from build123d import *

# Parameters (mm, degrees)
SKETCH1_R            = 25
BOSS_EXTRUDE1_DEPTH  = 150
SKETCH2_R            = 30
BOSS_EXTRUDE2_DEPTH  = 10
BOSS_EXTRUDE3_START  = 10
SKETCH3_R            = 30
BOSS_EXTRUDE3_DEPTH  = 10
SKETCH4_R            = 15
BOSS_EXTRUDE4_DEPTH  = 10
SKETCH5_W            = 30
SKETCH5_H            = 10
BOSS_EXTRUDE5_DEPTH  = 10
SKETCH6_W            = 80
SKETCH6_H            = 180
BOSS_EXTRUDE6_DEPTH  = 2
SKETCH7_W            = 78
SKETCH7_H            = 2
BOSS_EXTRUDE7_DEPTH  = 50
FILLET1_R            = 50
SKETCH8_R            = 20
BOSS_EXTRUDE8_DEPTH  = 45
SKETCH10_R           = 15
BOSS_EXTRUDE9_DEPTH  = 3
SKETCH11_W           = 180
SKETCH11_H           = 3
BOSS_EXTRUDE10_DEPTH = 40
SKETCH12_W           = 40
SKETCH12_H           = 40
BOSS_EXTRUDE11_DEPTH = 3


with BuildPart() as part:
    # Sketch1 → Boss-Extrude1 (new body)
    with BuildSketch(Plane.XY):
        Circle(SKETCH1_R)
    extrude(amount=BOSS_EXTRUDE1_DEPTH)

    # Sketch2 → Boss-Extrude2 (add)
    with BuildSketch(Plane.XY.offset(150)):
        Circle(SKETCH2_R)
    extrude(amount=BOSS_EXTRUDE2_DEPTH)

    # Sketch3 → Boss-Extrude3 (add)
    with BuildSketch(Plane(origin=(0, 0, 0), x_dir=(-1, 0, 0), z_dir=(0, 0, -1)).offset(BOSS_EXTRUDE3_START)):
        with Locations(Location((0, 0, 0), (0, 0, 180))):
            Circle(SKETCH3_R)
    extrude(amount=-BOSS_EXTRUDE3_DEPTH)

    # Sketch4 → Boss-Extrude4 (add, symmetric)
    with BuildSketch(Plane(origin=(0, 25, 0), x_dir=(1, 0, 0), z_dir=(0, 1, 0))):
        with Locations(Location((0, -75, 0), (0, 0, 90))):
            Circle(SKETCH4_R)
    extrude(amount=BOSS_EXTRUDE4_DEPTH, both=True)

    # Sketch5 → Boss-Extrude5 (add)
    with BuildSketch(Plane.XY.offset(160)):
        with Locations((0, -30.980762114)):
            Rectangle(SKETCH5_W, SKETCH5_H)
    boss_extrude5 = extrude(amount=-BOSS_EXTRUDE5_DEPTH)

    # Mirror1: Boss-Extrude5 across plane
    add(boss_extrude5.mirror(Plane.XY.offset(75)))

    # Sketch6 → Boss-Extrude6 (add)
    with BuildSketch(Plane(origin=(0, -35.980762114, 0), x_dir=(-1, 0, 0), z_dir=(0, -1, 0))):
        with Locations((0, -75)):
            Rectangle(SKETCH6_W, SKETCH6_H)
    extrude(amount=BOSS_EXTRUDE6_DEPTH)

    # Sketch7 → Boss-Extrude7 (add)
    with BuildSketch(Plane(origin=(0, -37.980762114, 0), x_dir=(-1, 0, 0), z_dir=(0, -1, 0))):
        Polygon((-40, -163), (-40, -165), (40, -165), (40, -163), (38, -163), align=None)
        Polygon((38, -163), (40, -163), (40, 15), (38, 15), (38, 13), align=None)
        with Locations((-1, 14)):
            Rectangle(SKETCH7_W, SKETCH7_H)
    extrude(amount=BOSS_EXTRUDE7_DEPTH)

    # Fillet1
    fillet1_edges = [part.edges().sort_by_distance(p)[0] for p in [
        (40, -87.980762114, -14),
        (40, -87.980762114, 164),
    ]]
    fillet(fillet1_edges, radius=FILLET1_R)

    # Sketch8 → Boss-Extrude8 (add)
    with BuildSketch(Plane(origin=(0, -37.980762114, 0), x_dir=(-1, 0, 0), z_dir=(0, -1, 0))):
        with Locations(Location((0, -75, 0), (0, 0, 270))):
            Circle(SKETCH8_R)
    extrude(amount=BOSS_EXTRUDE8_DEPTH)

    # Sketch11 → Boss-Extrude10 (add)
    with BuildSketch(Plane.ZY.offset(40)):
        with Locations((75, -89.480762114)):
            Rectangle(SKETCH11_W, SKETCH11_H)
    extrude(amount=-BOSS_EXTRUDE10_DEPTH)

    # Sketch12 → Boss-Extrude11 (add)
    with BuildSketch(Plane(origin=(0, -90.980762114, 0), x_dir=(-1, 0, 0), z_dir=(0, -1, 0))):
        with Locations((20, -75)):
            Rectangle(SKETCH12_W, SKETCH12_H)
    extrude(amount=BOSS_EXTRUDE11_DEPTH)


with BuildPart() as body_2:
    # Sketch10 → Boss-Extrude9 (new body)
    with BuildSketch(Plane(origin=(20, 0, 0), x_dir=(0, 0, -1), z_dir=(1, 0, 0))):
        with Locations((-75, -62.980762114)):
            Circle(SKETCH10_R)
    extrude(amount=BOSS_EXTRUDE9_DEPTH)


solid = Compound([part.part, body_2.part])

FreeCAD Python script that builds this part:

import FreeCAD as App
import Part
import Sketcher
from FreeCAD import Vector


def edges_at(feature, points):
    """Names of the edges that pass closest to the given points."""
    edges = feature.Shape.Edges
    near = lambda p: min(range(len(edges)), key=lambda i: edges[i].distToShape(Part.Vertex(*p))[0])
    return sorted({f"Edge{near(p) + 1}" for p in points})

doc = App.newDocument("Part")
body = doc.addObject("PartDesign::Body", "Body")

# Sketch on XY plane
sketch1 = body.newObject("Sketcher::SketchObject", "Sketch")
sketch1.AttachmentSupport = (doc.getObject("XY_Plane"), [""])
sketch1.MapMode = "FlatFace"
sketch1.addGeometry(Part.Circle(Vector(0, 0, 0), Vector(0, 0, 1), 25), False)
sketch1.addConstraint([
    Sketcher.Constraint("Coincident", 0, 3, -1, 1),
    Sketcher.Constraint("Diameter", 0, 50.0),
])
pad1 = body.newObject("PartDesign::Pad", "Pad")
pad1.Profile = sketch1
pad1.Length = 150

# Sketch on XY plane
sketch2 = body.newObject("Sketcher::SketchObject", "Sketch001")
sketch2.AttachmentSupport = (doc.getObject("XY_Plane"), [""])
sketch2.MapMode = "FlatFace"
sketch2.AttachmentOffset = App.Placement(Vector(0, 0, 150), App.Rotation())
sketch2.addGeometry(Part.Circle(Vector(0, 0, 0), Vector(0, 0, 1), 30), False)
sketch2.addConstraint([
    Sketcher.Constraint("Coincident", 0, 3, -1, 1),
    Sketcher.Constraint("Diameter", 0, 60.0),
])
pad2 = body.newObject("PartDesign::Pad", "Pad001")
pad2.Profile = sketch2
pad2.Length = 10

# Sketch on XY plane
sketch3 = body.newObject("Sketcher::SketchObject", "Sketch002")
sketch3.AttachmentSupport = (doc.getObject("XY_Plane"), [""])
sketch3.MapMode = "FlatFace"
sketch3.AttachmentOffset = App.Placement(Vector(0, 0, -10), App.Rotation())
sketch3.addGeometry(Part.Circle(Vector(0, 0, 0), Vector(0, 0, 1), 30), False)
sketch3.addConstraint([
    Sketcher.Constraint("Coincident", 0, 3, -1, 1),
    Sketcher.Constraint("Diameter", 0, 60.0),
])
pad3 = body.newObject("PartDesign::Pad", "Pad002")
pad3.Profile = sketch3
pad3.Length = 10

# Sketch on XZ plane
sketch4 = body.newObject("Sketcher::SketchObject", "Sketch003")
sketch4.AttachmentSupport = (doc.getObject("XZ_Plane"), [""])
sketch4.MapMode = "FlatFace"
sketch4.AttachmentOffset = App.Placement(Vector(0, 0, -25), App.Rotation())
sketch4.addGeometry(Part.Circle(Vector(0, 75, 0), Vector(0, 0, 1), 15), False)
sketch4.addConstraint([
    Sketcher.Constraint("PointOnObject", 0, 3, -2),
    Sketcher.Constraint("Diameter", 0, 30.0),
    Sketcher.Constraint("DistanceY", -1, 1, 0, 3, 75.0),
])
pad4 = body.newObject("PartDesign::Pad", "Pad003")
pad4.Profile = sketch4
pad4.Length = 20
pad4.Midplane = True

# Sketch on XY plane
sketch5 = body.newObject("Sketcher::SketchObject", "Sketch004")
sketch5.AttachmentSupport = (doc.getObject("XY_Plane"), [""])
sketch5.MapMode = "FlatFace"
sketch5.AttachmentOffset = App.Placement(Vector(0, 0, 160), App.Rotation())
sketch5.addGeometry([
    Part.LineSegment(Vector(-15, -25.980762, 0), Vector(-15, -35.980762, 0)),
    Part.LineSegment(Vector(-15, -35.980762, 0), Vector(15, -35.980762, 0)),
    Part.LineSegment(Vector(15, -35.980762, 0), Vector(15, -25.980762, 0)),
    Part.LineSegment(Vector(15, -25.980762, 0), Vector(-15, -25.980762, 0)),
], False)
sketch5.addConstraint([
    Sketcher.Constraint("Coincident", 0, 2, 1, 1),
    Sketcher.Constraint("Coincident", 1, 2, 2, 1),
    Sketcher.Constraint("Coincident", 2, 2, 3, 1),
    Sketcher.Constraint("Coincident", 3, 2, 0, 1),
    Sketcher.Constraint("Vertical", 0),
    Sketcher.Constraint("Horizontal", 1),
    Sketcher.Constraint("Vertical", 2),
    Sketcher.Constraint("Horizontal", 3),
    Sketcher.Constraint("DistanceX", 1, 1, 1, 2, 30.0),
    Sketcher.Constraint("DistanceY", 0, 2, 0, 1, 10.0),
    Sketcher.Constraint("DistanceX", 0, 2, -1, 1, 15.0),
    Sketcher.Constraint("DistanceY", 0, 2, -1, 1, 35.980762),
])
pad5 = body.newObject("PartDesign::Pad", "Pad004")
pad5.Profile = sketch5
pad5.Length = 10
pad5.Reversed = True
doc.recompute()

datumplane = body.newObject("PartDesign::Plane", "DatumPlane")
datumplane.AttachmentSupport = (doc.getObject("XY_Plane"), [""])
datumplane.MapMode = "FlatFace"
datumplane.AttachmentOffset = App.Placement(Vector(0, 0, 75), App.Rotation())
mirrored = body.newObject("PartDesign::Mirrored", "Mirrored")
mirrored.Originals = [pad5]
mirrored.MirrorPlane = (datumplane, [""])
body.Tip = mirrored

# Sketch on XZ plane
sketch6 = body.newObject("Sketcher::SketchObject", "Sketch005")
sketch6.AttachmentSupport = (doc.getObject("XZ_Plane"), [""])
sketch6.MapMode = "FlatFace"
sketch6.AttachmentOffset = App.Placement(Vector(0, 0, 35.980762), App.Rotation())
sketch6.addGeometry([
    Part.LineSegment(Vector(40, -15, 0), Vector(40, 165, 0)),
    Part.LineSegment(Vector(40, 165, 0), Vector(-40, 165, 0)),
    Part.LineSegment(Vector(-40, 165, 0), Vector(-40, -15, 0)),
    Part.LineSegment(Vector(-40, -15, 0), Vector(40, -15, 0)),
], False)
sketch6.addConstraint([
    Sketcher.Constraint("Coincident", 0, 2, 1, 1),
    Sketcher.Constraint("Coincident", 1, 2, 2, 1),
    Sketcher.Constraint("Coincident", 2, 2, 3, 1),
    Sketcher.Constraint("Coincident", 3, 2, 0, 1),
    Sketcher.Constraint("Vertical", 0),
    Sketcher.Constraint("Horizontal", 1),
    Sketcher.Constraint("Vertical", 2),
    Sketcher.Constraint("Horizontal", 3),
    Sketcher.Constraint("DistanceX", 1, 2, 1, 1, 80.0),
    Sketcher.Constraint("DistanceY", 0, 1, 0, 2, 180.0),
    Sketcher.Constraint("DistanceX", -1, 1, 0, 2, 40.0),
    Sketcher.Constraint("DistanceY", -1, 1, 0, 2, 165.0),
])
pad6 = body.newObject("PartDesign::Pad", "Pad005")
pad6.Profile = sketch6
pad6.Length = 2

# Sketch on XZ plane
sketch7 = body.newObject("Sketcher::SketchObject", "Sketch006")
sketch7.AttachmentSupport = (doc.getObject("XZ_Plane"), [""])
sketch7.MapMode = "FlatFace"
sketch7.AttachmentOffset = App.Placement(Vector(0, 0, 37.980762), App.Rotation())
sketch7.addGeometry([
    Part.LineSegment(Vector(40, 163, 0), Vector(40, 165, 0)),  # 0
    Part.LineSegment(Vector(40, 165, 0), Vector(-40, 165, 0)),  # 1
    Part.LineSegment(Vector(-40, 165, 0), Vector(-40, -15, 0)),  # 2
    Part.LineSegment(Vector(-40, -15, 0), Vector(40, -15, 0)),  # 3
    Part.LineSegment(Vector(40, -15, 0), Vector(40, -13, 0)),  # 4
    Part.LineSegment(Vector(40, -13, 0), Vector(-38, -13, 0)),  # 5
    Part.LineSegment(Vector(-38, -13, 0), Vector(-38, 163, 0)),  # 6
    Part.LineSegment(Vector(-38, 163, 0), Vector(40, 163, 0)),  # 7
], False)
sketch7.addConstraint([
    Sketcher.Constraint("Coincident", 0, 2, 1, 1),
    Sketcher.Constraint("Coincident", 1, 2, 2, 1),
    Sketcher.Constraint("Coincident", 2, 2, 3, 1),
    Sketcher.Constraint("Coincident", 3, 2, 4, 1),
    Sketcher.Constraint("Coincident", 4, 2, 5, 1),
    Sketcher.Constraint("Coincident", 5, 2, 6, 1),
    Sketcher.Constraint("Coincident", 6, 2, 7, 1),
    Sketcher.Constraint("Coincident", 7, 2, 0, 1),
    Sketcher.Constraint("Vertical", 0),
    Sketcher.Constraint("Horizontal", 1),
    Sketcher.Constraint("Vertical", 2),
    Sketcher.Constraint("Horizontal", 3),
    Sketcher.Constraint("Vertical", 4),
    Sketcher.Constraint("Horizontal", 5),
    Sketcher.Constraint("Vertical", 6),
    Sketcher.Constraint("Horizontal", 7),
    Sketcher.Constraint("Vertical", 0, 2, 3, 2),
    Sketcher.Constraint("Equal", 0, 4),
    Sketcher.Constraint("DistanceX", 1, 2, 1, 1, 80.0),
    Sketcher.Constraint("DistanceX", 5, 2, 5, 1, 78.0),
    Sketcher.Constraint("DistanceY", 0, 1, 0, 2, 2.0),
    Sketcher.Constraint("DistanceY", 2, 2, 2, 1, 180.0),
    Sketcher.Constraint("DistanceX", -1, 1, 0, 2, 40.0),
    Sketcher.Constraint("DistanceY", -1, 1, 0, 2, 165.0),
])
pad7 = body.newObject("PartDesign::Pad", "Pad006")
pad7.Profile = sketch7
pad7.Length = 50
doc.recompute()

fillet = body.newObject("PartDesign::Fillet", "Fillet")
fillet.Base = (pad7, edges_at(pad7, [(40, -87.981, -14), (40, -87.981, 164)]))
fillet.Radius = 50

# Sketch on XZ plane
sketch8 = body.newObject("Sketcher::SketchObject", "Sketch007")
sketch8.AttachmentSupport = (doc.getObject("XZ_Plane"), [""])
sketch8.MapMode = "FlatFace"
sketch8.AttachmentOffset = App.Placement(Vector(0, 0, 37.980762), App.Rotation())
sketch8.addGeometry(Part.Circle(Vector(0, 75, 0), Vector(0, 0, 1), 20), False)
sketch8.addConstraint([
    Sketcher.Constraint("PointOnObject", 0, 3, -2),
    Sketcher.Constraint("Diameter", 0, 40.0),
    Sketcher.Constraint("DistanceY", -1, 1, 0, 3, 75.0),
])
pad8 = body.newObject("PartDesign::Pad", "Pad007")
pad8.Profile = sketch8
pad8.Length = 45

# Sketch on YZ plane
sketch9 = body.newObject("Sketcher::SketchObject", "Sketch008")
sketch9.AttachmentSupport = (doc.getObject("YZ_Plane"), [""])
sketch9.MapMode = "FlatFace"
sketch9.AttachmentOffset = App.Placement(Vector(0, 0, -40), App.Rotation())
sketch9.addGeometry([
    Part.LineSegment(Vector(-87.980762, -15, 0), Vector(-90.980762, -15, 0)),
    Part.LineSegment(Vector(-90.980762, -15, 0), Vector(-90.980762, 165, 0)),
    Part.LineSegment(Vector(-90.980762, 165, 0), Vector(-87.980762, 165, 0)),
    Part.LineSegment(Vector(-87.980762, 165, 0), Vector(-87.980762, -15, 0)),
], False)
sketch9.addConstraint([
    Sketcher.Constraint("Coincident", 0, 2, 1, 1),
    Sketcher.Constraint("Coincident", 1, 2, 2, 1),
    Sketcher.Constraint("Coincident", 2, 2, 3, 1),
    Sketcher.Constraint("Coincident", 3, 2, 0, 1),
    Sketcher.Constraint("Horizontal", 0),
    Sketcher.Constraint("Vertical", 1),
    Sketcher.Constraint("Horizontal", 2),
    Sketcher.Constraint("Vertical", 3),
    Sketcher.Constraint("DistanceX", 0, 2, 0, 1, 3.0),
    Sketcher.Constraint("DistanceY", 1, 1, 1, 2, 180.0),
    Sketcher.Constraint("DistanceY", 0, 2, -1, 1, 15.0),
    Sketcher.Constraint("DistanceX", 0, 2, -1, 1, 90.980762),
])
pad9 = body.newObject("PartDesign::Pad", "Pad008")
pad9.Profile = sketch9
pad9.Length = 40

# Sketch on XZ plane
sketch10 = body.newObject("Sketcher::SketchObject", "Sketch009")
sketch10.AttachmentSupport = (doc.getObject("XZ_Plane"), [""])
sketch10.MapMode = "FlatFace"
sketch10.AttachmentOffset = App.Placement(Vector(0, 0, 90.980762), App.Rotation())
sketch10.addGeometry([
    Part.LineSegment(Vector(0, 55, 0), Vector(0, 95, 0)),
    Part.LineSegment(Vector(0, 95, 0), Vector(-40, 95, 0)),
    Part.LineSegment(Vector(-40, 95, 0), Vector(-40, 55, 0)),
    Part.LineSegment(Vector(-40, 55, 0), Vector(0, 55, 0)),
], False)
sketch10.addConstraint([
    Sketcher.Constraint("Coincident", 0, 2, 1, 1),
    Sketcher.Constraint("Coincident", 1, 2, 2, 1),
    Sketcher.Constraint("Coincident", 2, 2, 3, 1),
    Sketcher.Constraint("Coincident", 3, 2, 0, 1),
    Sketcher.Constraint("Vertical", 0),
    Sketcher.Constraint("Horizontal", 1),
    Sketcher.Constraint("Vertical", 2),
    Sketcher.Constraint("Horizontal", 3),
    Sketcher.Constraint("PointOnObject", 0, 2, -2),
    Sketcher.Constraint("Equal", 3, 0),
    Sketcher.Constraint("DistanceX", 1, 2, 1, 1, 40.0),
    Sketcher.Constraint("DistanceY", -1, 1, 0, 2, 95.0),
])
pad10 = body.newObject("PartDesign::Pad", "Pad009")
pad10.Profile = sketch10
pad10.Length = 3
body2 = doc.addObject("PartDesign::Body", "Body001")

# Sketch on YZ plane
sketch11 = body2.newObject("Sketcher::SketchObject", "Sketch010")
sketch11.AttachmentSupport = (doc.getObject("YZ_Plane001"), [""])
sketch11.MapMode = "FlatFace"
sketch11.AttachmentOffset = App.Placement(Vector(0, 0, 20), App.Rotation())
sketch11.addGeometry(Part.Circle(Vector(-62.980762, 75, 0), Vector(0, 0, 1), 15), False)
sketch11.addConstraint([
    Sketcher.Constraint("Diameter", 0, 30.0),
    Sketcher.Constraint("DistanceY", -1, 1, 0, 3, 75.0),
    Sketcher.Constraint("DistanceX", 0, 3, -1, 1, 62.980762),
])
pad11 = body2.newObject("PartDesign::Pad", "Pad010")
pad11.Profile = sketch11
pad11.Length = 3

doc.recompute()
